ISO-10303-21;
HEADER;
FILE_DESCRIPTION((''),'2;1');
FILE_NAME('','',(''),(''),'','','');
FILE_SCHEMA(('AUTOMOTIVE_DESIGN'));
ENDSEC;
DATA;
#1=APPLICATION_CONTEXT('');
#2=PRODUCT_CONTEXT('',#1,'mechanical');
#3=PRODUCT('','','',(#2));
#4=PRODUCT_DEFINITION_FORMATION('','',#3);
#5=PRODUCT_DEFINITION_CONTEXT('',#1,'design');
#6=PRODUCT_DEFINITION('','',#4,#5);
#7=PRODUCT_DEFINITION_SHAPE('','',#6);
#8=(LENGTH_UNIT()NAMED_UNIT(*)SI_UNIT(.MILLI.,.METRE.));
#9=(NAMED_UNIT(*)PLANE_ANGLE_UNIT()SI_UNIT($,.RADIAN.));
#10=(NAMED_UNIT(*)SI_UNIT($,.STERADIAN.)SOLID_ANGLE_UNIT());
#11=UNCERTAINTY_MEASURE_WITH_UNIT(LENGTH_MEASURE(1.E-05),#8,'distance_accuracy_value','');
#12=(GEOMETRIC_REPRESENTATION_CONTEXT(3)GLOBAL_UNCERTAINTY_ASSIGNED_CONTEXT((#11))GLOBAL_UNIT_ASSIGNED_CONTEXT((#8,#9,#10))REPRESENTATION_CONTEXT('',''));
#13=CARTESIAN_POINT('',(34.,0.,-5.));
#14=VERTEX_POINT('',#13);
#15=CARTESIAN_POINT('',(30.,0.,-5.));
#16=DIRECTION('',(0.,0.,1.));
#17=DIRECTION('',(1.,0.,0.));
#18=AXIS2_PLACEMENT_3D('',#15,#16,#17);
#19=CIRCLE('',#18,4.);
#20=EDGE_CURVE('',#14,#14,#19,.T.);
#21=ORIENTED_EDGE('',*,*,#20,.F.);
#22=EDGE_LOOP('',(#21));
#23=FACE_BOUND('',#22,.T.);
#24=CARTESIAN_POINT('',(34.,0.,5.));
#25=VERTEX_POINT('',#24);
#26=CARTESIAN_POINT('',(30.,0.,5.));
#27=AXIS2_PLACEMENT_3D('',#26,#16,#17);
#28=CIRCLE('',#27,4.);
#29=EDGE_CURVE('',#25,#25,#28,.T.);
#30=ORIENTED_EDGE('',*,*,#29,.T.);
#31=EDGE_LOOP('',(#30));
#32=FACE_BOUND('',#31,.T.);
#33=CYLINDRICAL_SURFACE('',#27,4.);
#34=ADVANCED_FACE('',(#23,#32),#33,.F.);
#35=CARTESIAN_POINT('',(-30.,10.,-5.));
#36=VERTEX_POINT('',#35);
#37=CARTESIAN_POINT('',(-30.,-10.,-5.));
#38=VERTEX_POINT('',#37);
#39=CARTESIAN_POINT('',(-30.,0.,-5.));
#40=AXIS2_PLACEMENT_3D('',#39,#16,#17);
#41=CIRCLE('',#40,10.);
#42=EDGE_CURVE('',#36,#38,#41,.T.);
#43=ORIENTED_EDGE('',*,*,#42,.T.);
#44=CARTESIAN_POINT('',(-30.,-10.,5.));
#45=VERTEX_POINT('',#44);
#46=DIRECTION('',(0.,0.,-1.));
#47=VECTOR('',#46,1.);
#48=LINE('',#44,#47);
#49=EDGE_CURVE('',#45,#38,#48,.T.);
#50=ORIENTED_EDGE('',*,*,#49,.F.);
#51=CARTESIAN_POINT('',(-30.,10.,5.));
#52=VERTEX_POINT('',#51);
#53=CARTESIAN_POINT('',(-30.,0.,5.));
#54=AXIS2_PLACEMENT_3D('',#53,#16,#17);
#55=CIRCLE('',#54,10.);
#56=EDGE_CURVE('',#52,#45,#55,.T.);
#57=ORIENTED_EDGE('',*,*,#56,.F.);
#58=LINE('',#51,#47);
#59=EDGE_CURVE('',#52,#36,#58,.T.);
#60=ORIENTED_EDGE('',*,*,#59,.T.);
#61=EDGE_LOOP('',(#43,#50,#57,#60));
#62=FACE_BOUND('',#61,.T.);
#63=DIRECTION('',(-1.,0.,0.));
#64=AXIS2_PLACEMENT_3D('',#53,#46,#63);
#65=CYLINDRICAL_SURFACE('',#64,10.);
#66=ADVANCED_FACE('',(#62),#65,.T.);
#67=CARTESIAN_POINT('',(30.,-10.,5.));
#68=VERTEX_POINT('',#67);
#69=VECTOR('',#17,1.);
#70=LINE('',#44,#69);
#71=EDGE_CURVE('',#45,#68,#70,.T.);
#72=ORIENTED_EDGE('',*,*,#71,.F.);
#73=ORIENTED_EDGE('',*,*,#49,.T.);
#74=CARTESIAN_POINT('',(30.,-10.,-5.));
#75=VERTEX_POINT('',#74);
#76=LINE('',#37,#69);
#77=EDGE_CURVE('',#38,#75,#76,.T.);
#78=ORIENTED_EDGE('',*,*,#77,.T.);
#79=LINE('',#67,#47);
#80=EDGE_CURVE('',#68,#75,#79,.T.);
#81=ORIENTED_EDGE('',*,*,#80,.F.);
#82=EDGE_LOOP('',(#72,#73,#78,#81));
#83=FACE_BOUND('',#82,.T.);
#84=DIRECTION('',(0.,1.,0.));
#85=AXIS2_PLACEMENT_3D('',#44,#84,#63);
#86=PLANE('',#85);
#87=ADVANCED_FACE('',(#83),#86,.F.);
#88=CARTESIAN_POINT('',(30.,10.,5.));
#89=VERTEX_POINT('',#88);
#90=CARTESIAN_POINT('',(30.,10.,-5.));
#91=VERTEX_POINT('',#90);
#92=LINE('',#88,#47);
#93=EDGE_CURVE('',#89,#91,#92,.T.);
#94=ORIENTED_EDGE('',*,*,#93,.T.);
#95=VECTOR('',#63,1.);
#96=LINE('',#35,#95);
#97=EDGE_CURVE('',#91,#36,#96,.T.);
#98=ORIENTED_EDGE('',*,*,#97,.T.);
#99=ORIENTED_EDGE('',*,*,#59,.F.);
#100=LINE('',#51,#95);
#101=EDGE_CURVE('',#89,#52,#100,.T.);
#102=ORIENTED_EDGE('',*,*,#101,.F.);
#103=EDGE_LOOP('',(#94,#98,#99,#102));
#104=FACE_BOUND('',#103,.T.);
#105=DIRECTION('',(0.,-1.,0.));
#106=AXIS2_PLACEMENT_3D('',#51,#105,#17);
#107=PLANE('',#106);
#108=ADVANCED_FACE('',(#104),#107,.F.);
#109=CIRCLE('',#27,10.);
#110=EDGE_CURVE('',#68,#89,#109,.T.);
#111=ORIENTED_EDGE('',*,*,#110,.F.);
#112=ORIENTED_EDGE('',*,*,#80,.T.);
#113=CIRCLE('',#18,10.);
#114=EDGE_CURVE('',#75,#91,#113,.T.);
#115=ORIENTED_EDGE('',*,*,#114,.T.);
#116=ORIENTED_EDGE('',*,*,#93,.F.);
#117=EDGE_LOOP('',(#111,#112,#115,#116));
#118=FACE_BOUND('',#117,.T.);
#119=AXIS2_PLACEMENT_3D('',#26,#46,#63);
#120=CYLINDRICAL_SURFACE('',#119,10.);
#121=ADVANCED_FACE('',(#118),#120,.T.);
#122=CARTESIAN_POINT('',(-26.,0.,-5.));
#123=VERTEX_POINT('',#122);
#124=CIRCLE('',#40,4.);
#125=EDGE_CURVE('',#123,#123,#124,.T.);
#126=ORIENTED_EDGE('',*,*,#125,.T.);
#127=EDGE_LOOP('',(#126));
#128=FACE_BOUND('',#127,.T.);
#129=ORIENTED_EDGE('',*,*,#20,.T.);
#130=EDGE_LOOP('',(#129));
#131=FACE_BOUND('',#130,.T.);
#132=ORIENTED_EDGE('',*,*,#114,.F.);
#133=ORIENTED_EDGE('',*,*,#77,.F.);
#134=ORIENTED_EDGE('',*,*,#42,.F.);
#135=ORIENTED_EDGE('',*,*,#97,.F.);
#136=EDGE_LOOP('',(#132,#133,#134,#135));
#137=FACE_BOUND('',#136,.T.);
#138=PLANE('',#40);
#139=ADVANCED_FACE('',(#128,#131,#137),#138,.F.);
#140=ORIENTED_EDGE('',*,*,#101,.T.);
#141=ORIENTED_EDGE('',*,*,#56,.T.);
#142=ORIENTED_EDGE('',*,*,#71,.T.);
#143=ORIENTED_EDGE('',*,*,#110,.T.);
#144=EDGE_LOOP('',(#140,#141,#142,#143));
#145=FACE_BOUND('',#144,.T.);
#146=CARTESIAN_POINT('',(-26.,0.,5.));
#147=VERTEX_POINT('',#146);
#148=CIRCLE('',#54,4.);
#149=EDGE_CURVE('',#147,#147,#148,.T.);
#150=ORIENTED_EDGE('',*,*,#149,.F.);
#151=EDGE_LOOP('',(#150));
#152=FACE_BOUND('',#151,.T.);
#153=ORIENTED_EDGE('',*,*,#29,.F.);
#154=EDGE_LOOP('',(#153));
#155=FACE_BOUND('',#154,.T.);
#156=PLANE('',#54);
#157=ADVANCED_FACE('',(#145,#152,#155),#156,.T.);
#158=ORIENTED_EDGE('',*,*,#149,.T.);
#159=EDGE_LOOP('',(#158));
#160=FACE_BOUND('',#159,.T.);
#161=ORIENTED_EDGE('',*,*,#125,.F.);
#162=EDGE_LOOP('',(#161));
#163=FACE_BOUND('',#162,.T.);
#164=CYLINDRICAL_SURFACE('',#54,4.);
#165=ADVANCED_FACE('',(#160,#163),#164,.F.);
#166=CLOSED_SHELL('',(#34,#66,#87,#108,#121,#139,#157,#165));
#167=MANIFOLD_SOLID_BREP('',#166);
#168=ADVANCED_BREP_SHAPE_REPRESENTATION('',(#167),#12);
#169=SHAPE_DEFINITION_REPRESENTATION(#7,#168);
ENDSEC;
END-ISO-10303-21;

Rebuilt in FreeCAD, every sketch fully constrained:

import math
import FreeCAD as App
import Part
import Sketcher

V = App.Vector

doc = App.newDocument("Part")
body = doc.addObject("PartDesign::Body", "Body")

# Sketch on XY plane
sketch1 = body.newObject("Sketcher::SketchObject", "Sketch")
sketch1.AttachmentSupport = (doc.getObject("XY_Plane"), [""])
sketch1.MapMode = "FlatFace"
sketch1.addGeometry([
    Part.LineSegment(V(30, 10, 0), V(-30, 10, 0)),
    Part.ArcOfCircle(Part.Circle(V(-30, 0, 0), V(0, 0, 1), 10), math.radians(90), math.radians(270)),
    Part.LineSegment(V(-30, -10, 0), V(30, -10, 0)),
    Part.ArcOfCircle(Part.Circle(V(30, 0, 0), V(0, 0, 1), 10), math.radians(-90), math.radians(90)),
], False)
sketch1.addConstraint([
    Sketcher.Constraint("Tangent", 0, 2, 1, 1),
    Sketcher.Constraint("Tangent", 1, 2, 2, 1),
    Sketcher.Constraint("Tangent", 2, 2, 3, 1),
    Sketcher.Constraint("Tangent", 3, 2, 0, 1),
    Sketcher.Constraint("Horizontal", 0),
    Sketcher.Constraint("Horizontal", 2),
    Sketcher.Constraint("Symmetric", 1, 3, 3, 3, -1, 1),
    Sketcher.Constraint("Radius", 1, 10.0),
    Sketcher.Constraint("DistanceX", 0, 2, 0, 1, 60.0),
])
pad1 = body.newObject("PartDesign::Pad", "Pad")
pad1.Profile = sketch1
pad1.Length = 10
pad1.Midplane = True

# Sketch on XY plane
sketch2 = body.newObject("Sketcher::SketchObject", "Sketch001")
sketch2.AttachmentSupport = (doc.getObject("XY_Plane"), [""])
sketch2.MapMode = "FlatFace"
sketch2.AttachmentOffset = App.Placement(V(0, 0, 5), App.Rotation())
sketch2.addGeometry([
    Part.Circle(V(-30, 0, 0), V(0, 0, 1), 4),
    Part.Circle(V(30, 0, 0), V(0, 0, 1), 4),
], False)
sketch2.addConstraint([
    Sketcher.Constraint("Equal", 0, 1),
    Sketcher.Constraint("Symmetric", 0, 3, 1, 3, -1, 1),
    Sketcher.Constraint("PointOnObject", 0, 3, -1),
    Sketcher.Constraint("Diameter", 0, 8.0),
    Sketcher.Constraint("DistanceX", 0, 3, -1, 1, 30.0),
])
doc.recompute()
hole = body.newObject("PartDesign::Hole", "Hole")
hole.Profile = sketch2
hole.ThreadType = "None"
hole.Diameter = 8
hole.DepthType = "ThroughAll"

doc.recompute()
